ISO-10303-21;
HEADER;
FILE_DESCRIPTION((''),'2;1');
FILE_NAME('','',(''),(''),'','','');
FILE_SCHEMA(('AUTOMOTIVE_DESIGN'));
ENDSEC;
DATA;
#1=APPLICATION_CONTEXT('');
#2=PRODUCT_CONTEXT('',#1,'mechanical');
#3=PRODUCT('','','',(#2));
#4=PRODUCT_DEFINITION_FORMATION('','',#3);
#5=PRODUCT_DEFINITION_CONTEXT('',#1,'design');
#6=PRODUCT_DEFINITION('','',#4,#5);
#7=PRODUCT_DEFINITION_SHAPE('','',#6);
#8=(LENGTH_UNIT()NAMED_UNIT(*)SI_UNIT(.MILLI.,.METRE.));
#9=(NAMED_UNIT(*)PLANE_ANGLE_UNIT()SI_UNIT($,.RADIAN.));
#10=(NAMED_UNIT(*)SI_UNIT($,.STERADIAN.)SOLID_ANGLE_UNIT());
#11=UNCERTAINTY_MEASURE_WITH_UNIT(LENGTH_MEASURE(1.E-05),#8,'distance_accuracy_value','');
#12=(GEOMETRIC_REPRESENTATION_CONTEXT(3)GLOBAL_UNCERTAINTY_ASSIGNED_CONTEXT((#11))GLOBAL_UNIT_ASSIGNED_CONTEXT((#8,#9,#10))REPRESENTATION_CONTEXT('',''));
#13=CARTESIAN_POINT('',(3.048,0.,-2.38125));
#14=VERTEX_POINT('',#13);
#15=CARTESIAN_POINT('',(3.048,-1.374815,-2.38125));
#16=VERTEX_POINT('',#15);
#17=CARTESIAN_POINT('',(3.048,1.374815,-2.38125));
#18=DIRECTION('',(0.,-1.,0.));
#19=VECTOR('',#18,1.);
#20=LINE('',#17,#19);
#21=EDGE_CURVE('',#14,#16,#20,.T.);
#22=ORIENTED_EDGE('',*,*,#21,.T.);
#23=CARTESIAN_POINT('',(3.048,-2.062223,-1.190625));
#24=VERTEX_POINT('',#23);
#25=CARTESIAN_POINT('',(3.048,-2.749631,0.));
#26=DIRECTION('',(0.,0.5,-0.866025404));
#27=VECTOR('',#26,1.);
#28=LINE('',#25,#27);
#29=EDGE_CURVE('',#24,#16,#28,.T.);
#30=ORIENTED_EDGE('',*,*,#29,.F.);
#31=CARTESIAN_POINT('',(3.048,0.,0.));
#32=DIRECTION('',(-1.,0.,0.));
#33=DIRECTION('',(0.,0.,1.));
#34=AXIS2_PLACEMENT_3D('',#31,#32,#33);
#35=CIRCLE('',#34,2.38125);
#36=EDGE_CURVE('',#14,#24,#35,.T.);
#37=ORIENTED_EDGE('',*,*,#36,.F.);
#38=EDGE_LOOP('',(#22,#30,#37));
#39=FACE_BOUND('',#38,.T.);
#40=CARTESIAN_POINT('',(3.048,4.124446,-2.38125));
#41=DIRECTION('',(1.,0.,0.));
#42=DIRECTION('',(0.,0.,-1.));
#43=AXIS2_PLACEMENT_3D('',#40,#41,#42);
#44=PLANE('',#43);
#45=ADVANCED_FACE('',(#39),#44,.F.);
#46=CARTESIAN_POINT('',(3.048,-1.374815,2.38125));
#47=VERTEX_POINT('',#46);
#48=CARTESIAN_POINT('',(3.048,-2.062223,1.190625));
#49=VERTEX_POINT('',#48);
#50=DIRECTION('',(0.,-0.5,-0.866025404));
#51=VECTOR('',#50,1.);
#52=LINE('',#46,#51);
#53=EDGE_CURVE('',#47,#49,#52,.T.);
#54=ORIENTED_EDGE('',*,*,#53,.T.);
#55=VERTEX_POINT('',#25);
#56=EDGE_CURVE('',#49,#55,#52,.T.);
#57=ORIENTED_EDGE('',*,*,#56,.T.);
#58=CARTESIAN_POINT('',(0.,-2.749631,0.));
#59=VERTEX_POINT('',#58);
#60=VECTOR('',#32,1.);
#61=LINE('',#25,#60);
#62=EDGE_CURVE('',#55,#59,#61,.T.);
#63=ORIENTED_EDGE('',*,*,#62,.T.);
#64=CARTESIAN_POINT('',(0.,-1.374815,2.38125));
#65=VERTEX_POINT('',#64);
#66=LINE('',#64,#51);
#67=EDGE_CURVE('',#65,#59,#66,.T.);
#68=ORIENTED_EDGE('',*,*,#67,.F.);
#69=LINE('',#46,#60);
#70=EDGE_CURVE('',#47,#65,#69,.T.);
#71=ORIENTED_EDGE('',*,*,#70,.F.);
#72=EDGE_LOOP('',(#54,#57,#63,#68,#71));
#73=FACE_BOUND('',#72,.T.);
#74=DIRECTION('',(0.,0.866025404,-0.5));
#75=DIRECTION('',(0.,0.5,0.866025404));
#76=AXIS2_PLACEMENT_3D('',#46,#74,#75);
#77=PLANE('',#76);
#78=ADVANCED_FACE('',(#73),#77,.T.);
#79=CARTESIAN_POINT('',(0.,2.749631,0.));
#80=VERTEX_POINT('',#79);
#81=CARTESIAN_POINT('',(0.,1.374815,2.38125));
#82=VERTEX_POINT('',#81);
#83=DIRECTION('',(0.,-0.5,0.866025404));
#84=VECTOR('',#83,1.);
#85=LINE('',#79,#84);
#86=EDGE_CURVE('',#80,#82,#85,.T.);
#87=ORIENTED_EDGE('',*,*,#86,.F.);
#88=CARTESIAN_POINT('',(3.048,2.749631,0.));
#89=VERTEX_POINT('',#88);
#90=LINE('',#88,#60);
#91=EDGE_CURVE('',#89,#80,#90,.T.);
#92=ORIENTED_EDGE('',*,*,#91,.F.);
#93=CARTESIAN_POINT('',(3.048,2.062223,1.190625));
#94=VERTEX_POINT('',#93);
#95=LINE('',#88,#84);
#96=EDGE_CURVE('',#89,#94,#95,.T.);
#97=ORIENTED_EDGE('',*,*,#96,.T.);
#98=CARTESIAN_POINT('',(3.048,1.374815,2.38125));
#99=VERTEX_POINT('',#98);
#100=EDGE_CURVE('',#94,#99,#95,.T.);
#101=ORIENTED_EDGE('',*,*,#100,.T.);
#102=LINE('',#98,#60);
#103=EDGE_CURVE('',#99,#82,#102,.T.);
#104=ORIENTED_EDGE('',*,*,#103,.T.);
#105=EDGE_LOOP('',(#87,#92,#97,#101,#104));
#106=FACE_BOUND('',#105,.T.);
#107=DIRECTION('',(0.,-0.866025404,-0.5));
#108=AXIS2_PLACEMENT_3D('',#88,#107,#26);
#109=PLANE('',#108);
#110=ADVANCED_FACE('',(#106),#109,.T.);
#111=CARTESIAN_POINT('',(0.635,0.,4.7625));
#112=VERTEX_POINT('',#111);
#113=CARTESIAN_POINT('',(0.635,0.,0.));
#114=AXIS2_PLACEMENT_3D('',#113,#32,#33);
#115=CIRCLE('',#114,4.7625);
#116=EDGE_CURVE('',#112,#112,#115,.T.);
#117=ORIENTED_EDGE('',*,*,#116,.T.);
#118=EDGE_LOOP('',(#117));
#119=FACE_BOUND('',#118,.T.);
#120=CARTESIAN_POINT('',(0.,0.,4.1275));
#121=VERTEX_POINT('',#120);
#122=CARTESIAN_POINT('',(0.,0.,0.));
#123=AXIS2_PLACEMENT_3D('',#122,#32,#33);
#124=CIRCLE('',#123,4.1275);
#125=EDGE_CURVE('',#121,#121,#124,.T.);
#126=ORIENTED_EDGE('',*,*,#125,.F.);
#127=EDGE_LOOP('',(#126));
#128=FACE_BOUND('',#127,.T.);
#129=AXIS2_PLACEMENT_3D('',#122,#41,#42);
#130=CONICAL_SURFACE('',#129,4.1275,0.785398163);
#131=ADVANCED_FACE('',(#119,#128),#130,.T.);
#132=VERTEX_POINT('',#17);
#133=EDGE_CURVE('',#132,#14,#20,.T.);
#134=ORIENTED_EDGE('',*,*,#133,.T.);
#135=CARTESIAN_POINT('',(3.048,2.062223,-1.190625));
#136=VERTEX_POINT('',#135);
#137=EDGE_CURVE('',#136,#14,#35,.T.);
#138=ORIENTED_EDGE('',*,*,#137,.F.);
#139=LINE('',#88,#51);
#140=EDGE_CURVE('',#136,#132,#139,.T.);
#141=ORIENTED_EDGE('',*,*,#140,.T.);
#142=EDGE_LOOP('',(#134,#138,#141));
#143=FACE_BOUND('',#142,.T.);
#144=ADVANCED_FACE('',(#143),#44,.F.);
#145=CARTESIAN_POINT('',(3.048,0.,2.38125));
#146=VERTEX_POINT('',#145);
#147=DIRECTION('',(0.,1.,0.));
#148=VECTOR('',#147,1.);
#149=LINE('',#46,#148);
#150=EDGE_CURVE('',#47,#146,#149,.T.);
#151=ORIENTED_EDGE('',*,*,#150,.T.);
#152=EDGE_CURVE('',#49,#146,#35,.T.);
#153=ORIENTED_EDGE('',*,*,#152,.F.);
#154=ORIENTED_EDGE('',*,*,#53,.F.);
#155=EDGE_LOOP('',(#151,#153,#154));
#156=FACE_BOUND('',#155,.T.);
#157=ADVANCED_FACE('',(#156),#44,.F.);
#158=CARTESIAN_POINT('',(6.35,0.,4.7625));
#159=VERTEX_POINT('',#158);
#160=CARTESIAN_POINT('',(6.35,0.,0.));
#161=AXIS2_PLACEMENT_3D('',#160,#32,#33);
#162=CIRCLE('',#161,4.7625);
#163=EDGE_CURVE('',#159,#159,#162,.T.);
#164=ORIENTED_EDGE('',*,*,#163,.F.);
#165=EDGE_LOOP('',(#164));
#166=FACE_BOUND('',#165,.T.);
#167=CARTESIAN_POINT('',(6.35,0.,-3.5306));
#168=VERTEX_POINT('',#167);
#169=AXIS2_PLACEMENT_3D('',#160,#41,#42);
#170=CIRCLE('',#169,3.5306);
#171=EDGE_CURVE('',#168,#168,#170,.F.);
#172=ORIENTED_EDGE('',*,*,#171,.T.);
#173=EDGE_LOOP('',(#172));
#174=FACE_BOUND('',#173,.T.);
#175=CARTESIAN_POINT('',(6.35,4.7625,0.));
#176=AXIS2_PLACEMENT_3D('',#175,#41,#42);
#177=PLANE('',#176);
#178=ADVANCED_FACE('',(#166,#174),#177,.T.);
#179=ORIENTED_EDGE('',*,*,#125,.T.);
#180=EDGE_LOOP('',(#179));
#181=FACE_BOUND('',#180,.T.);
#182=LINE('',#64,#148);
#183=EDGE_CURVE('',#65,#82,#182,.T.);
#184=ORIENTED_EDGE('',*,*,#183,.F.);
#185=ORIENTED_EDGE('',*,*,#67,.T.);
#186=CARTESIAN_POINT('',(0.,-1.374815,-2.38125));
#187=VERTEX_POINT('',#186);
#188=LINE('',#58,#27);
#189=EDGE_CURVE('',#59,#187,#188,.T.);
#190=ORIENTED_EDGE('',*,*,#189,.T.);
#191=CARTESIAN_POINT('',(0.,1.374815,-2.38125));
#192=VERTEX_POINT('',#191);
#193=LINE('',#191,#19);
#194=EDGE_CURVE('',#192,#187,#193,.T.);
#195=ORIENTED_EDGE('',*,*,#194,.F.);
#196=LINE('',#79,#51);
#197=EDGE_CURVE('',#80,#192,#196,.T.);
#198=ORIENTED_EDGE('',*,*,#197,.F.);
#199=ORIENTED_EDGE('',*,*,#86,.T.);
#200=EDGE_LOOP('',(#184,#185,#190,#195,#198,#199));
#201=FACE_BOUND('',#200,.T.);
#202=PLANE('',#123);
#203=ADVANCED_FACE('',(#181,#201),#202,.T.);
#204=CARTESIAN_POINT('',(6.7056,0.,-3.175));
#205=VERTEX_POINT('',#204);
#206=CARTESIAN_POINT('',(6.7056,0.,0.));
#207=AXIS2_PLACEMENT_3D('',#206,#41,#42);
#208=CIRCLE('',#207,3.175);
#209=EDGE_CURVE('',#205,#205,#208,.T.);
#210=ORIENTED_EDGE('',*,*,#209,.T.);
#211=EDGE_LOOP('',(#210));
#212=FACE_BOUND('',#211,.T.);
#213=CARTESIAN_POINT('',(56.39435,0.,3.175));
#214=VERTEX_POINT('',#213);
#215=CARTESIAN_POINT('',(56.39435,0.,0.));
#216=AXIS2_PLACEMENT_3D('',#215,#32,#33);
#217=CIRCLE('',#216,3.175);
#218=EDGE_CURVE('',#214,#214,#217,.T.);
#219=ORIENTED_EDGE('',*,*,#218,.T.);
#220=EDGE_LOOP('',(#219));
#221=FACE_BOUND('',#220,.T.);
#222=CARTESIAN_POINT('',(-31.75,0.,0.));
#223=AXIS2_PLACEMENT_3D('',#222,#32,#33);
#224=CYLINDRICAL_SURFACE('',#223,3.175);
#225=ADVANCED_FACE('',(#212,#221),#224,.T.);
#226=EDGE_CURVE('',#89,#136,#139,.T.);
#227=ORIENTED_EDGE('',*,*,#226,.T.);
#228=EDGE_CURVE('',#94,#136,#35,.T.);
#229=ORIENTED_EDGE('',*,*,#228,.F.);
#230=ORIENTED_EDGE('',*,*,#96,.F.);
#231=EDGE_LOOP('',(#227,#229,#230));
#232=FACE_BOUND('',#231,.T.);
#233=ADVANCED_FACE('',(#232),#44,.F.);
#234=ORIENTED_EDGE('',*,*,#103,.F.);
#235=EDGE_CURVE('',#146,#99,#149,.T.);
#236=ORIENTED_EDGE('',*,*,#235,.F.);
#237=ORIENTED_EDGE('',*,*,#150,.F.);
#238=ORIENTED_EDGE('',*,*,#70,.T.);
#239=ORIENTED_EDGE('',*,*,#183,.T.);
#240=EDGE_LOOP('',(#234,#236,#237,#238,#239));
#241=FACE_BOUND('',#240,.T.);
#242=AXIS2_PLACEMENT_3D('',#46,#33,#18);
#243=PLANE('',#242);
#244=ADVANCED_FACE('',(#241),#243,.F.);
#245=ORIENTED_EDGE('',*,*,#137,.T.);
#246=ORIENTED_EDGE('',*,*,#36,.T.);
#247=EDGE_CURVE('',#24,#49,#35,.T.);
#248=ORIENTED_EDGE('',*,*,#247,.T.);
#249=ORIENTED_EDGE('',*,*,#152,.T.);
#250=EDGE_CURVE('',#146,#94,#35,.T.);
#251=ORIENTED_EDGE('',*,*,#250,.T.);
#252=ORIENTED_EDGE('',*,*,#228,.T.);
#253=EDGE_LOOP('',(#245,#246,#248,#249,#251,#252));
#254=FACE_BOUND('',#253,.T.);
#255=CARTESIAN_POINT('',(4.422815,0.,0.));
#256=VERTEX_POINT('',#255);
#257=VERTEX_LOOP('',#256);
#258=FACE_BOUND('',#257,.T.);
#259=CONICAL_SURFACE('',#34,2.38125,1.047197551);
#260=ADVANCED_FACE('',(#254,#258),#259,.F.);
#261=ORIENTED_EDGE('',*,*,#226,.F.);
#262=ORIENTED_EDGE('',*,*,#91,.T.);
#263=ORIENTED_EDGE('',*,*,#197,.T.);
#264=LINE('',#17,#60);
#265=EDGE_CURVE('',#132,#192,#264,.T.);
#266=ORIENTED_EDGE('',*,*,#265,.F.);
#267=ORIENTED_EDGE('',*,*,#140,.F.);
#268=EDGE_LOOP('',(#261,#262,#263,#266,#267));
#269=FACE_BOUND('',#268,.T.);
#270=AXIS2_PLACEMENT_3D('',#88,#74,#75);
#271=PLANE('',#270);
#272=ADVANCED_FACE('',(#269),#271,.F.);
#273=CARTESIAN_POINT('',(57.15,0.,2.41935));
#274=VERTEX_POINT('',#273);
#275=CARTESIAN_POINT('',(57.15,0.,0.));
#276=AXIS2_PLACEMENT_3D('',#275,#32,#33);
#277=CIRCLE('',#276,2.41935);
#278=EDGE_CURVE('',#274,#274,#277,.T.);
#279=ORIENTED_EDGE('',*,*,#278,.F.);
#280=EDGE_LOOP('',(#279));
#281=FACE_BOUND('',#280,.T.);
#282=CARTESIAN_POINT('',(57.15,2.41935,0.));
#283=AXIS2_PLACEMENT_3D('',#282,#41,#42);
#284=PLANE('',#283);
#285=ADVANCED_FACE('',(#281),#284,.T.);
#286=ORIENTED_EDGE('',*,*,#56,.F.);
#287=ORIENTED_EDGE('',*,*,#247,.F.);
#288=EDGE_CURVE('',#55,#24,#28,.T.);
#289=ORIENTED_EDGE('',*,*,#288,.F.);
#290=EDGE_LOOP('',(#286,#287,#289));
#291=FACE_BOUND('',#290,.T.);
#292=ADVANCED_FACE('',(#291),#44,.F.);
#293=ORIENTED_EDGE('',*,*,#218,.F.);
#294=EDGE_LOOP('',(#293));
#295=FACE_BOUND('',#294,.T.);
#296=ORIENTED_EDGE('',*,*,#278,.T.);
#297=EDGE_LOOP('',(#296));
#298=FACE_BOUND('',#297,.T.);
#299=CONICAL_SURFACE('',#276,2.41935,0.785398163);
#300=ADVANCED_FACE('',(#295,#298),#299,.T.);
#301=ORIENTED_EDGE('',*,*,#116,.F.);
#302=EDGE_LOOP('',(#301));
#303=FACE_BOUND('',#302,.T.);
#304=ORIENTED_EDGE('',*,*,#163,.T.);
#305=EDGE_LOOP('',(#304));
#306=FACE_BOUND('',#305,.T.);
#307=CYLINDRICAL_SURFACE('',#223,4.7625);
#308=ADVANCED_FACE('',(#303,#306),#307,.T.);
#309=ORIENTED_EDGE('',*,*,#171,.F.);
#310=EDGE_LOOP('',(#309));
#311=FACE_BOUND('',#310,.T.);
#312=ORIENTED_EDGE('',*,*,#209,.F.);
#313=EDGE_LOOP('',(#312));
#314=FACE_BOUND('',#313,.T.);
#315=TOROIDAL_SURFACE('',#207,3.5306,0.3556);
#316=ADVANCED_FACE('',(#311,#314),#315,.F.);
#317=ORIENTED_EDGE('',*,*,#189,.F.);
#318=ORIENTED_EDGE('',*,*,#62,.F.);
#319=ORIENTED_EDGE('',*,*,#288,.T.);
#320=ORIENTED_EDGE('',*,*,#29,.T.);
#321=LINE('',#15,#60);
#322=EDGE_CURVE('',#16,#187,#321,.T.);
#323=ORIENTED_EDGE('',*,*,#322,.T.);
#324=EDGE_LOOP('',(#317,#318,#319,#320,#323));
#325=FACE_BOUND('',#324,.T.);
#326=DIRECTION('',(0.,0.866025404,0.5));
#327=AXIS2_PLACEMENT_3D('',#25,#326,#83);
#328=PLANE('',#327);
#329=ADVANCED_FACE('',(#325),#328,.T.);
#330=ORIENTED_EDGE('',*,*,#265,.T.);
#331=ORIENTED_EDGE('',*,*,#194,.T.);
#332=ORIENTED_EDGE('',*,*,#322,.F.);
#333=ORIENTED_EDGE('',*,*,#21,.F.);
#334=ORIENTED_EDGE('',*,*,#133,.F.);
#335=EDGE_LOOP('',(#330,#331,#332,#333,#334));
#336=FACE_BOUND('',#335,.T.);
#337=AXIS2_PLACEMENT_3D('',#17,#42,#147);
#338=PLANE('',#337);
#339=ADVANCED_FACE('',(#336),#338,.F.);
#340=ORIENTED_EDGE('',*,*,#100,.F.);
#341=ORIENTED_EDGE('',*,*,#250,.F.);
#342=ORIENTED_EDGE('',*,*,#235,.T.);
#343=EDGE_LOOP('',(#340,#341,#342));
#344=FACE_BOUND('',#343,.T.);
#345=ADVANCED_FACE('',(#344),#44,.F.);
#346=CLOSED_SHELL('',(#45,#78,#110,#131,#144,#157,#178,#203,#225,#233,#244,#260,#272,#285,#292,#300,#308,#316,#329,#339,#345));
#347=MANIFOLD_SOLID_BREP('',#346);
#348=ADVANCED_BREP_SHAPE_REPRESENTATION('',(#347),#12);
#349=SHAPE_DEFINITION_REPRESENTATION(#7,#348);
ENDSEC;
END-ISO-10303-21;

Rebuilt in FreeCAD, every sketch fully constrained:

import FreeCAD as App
import Part
import Sketcher
from FreeCAD import Vector
Q = App.Units.Quantity


def edges_at(feature, points):
    """Names of the edges that pass closest to the given points."""
    edges = feature.Shape.Edges
    near = lambda p: min(range(len(edges)), key=lambda i: edges[i].distToShape(Part.Vertex(*p))[0])
    return sorted({f"Edge{near(p) + 1}" for p in points})

doc = App.newDocument("Part")
body = doc.addObject("PartDesign::Body", "Body")

# Sketch on XY plane
sketch1 = doc.addObject("Sketcher::SketchObject", "Sketch")
body.addObject(sketch1)
sketch1.AttachmentSupport = (doc.XY_Plane, [""])
sketch1.MapMode = "FlatFace"
sketch1.addGeometry([
    Part.LineSegment(Vector(0, 4.1, 0), Vector(0, 0, 0)),  # 0
    Part.LineSegment(Vector(0, 0, 0), Vector(57.1, 0, 0)),  # 1
    Part.LineSegment(Vector(57.1, 0, 0), Vector(57.1, 2.4, 0)),  # 2
    Part.LineSegment(Vector(57.1, 2.4, 0), Vector(56.4, 3.2, 0)),  # 3
    Part.LineSegment(Vector(56.4, 3.2, 0), Vector(6.3, 3.2, 0)),  # 4
    Part.LineSegment(Vector(6.3, 3.2, 0), Vector(6.3, 4.8, 0)),  # 5
    Part.LineSegment(Vector(6.3, 4.8, 0), Vector(0.6, 4.8, 0)),  # 6
    Part.LineSegment(Vector(0.6, 4.8, 0), Vector(0, 4.1, 0)),  # 7
], False)
sketch1.addConstraint([
    Sketcher.Constraint("Coincident", 0, 2, 1, 1),
    Sketcher.Constraint("Coincident", 1, 2, 2, 1),
    Sketcher.Constraint("Coincident", 2, 2, 3, 1),
    Sketcher.Constraint("Coincident", 3, 2, 4, 1),
    Sketcher.Constraint("Coincident", 4, 2, 5, 1),
    Sketcher.Constraint("Coincident", 5, 2, 6, 1),
    Sketcher.Constraint("Coincident", 6, 2, 7, 1),
    Sketcher.Constraint("Coincident", 7, 2, 0, 1),
    Sketcher.Constraint("Vertical", 0),
    Sketcher.Constraint("Horizontal", 1),
    Sketcher.Constraint("Vertical", 2),
    Sketcher.Constraint("Horizontal", 4),
    Sketcher.Constraint("Vertical", 5),
    Sketcher.Constraint("Horizontal", 6),
    Sketcher.Constraint("Coincident", 0, 2, -1, 1),
    Sketcher.Constraint("Perpendicular", 3, 7),
    Sketcher.Constraint("Angle", 3, Q("135 deg")),
    Sketcher.Constraint("DistanceX", 4, 2, 2, 2, Q("2 in")),
    Sketcher.Constraint("DistanceX", 1, 1, 1, 2, Q("2.25 in")),
    Sketcher.Constraint("DistanceX", 6, 2, 6, 1, Q("0.225 in")),
    Sketcher.Constraint("DistanceY", 5, 1, 5, 2, Q("0.0625 in")),
    Sketcher.Constraint("DistanceY", 0, 2, 0, 1, Q("0.1625 in")),
    Sketcher.Constraint("DistanceX", 4, 2, 4, 1, Q("50.04435 mm")),
])
revolution = doc.addObject("PartDesign::Revolution", "Revolution")
body.addObject(revolution)
revolution.Profile = sketch1
revolution.ReferenceAxis = (sketch1, ["H_Axis"])
revolution.Angle = 360
doc.recompute()

fillet = doc.addObject("PartDesign::Fillet", "Fillet")
body.addObject(fillet)
fillet.Base = (revolution, edges_at(revolution, [(6.35, 0, -3.175)]))
fillet.Radius = Q("0.014 in")

# Sketch on XY plane
sketch2 = doc.addObject("Sketcher::SketchObject", "Sketch001")
body.addObject(sketch2)
sketch2.AttachmentSupport = (doc.XY_Plane, [""])
sketch2.MapMode = "FlatFace"
sketch2.addGeometry([
    Part.LineSegment(Vector(3, 2.4, 0), Vector(0, 2.4, 0)),
    Part.LineSegment(Vector(0, 2.4, 0), Vector(0, 0, 0)),
    Part.LineSegment(Vector(0, 0, 0), Vector(4.4, 0, 0)),
    Part.LineSegment(Vector(4.4, 0, 0), Vector(3, 2.4, 0)),
], False)
sketch2.addConstraint([
    Sketcher.Constraint("Coincident", 0, 2, 1, 1),
    Sketcher.Constraint("Coincident", 1, 2, 2, 1),
    Sketcher.Constraint("Coincident", 2, 2, 3, 1),
    Sketcher.Constraint("Coincident", 3, 2, 0, 1),
    Sketcher.Constraint("Horizontal", 0),
    Sketcher.Constraint("Vertical", 1),
    Sketcher.Constraint("Horizontal", 2),
    Sketcher.Constraint("Coincident", 1, 2, -1, 1),
    Sketcher.Constraint("Angle", 3, Q("120 deg")),
    Sketcher.Constraint("DistanceX", 0, 2, 0, 1, Q("0.12 in")),
    Sketcher.Constraint("DistanceY", 1, 2, 1, 1, Q("0.09375 in")),
])
groove = doc.addObject("PartDesign::Groove", "Groove")
body.addObject(groove)
groove.Profile = sketch2
groove.ReferenceAxis = (sketch2, ["H_Axis"])
groove.Angle = 360

# Sketch on YZ plane
sketch3 = doc.addObject("Sketcher::SketchObject", "Sketch002")
body.addObject(sketch3)
sketch3.AttachmentSupport = (doc.YZ_Plane, [""])
sketch3.MapMode = "FlatFace"
sketch3.addGeometry([
    Part.LineSegment(Vector(2.7, 0, 0), Vector(1.4, -2.4, 0)),  # 0
    Part.LineSegment(Vector(1.4, -2.4, 0), Vector(-1.4, -2.4, 0)),  # 1
    Part.LineSegment(Vector(-1.4, -2.4, 0), Vector(-2.7, 0, 0)),  # 2
    Part.LineSegment(Vector(-2.7, 0, 0), Vector(-1.4, 2.4, 0)),  # 3
    Part.LineSegment(Vector(-1.4, 2.4, 0), Vector(1.4, 2.4, 0)),  # 4
    Part.LineSegment(Vector(1.4, 2.4, 0), Vector(2.7, 0, 0)),  # 5
], False)
sketch3.addConstraint([
    Sketcher.Constraint("Coincident", 0, 2, 1, 1),
    Sketcher.Constraint("Coincident", 1, 2, 2, 1),
    Sketcher.Constraint("Coincident", 2, 2, 3, 1),
    Sketcher.Constraint("Coincident", 3, 2, 4, 1),
    Sketcher.Constraint("Coincident", 4, 2, 5, 1),
    Sketcher.Constraint("Coincident", 5, 2, 0, 1),
    Sketcher.Constraint("Horizontal", 1),
    Sketcher.Constraint("Horizontal", 4),
    Sketcher.Constraint("Symmetric", 0, 2, 3, 2, -1, 1),
    Sketcher.Constraint("Symmetric", 2, 2, 5, 2, -1, 1),
    Sketcher.Constraint("PointOnObject", 2, 2, -1),
    Sketcher.Constraint("Parallel", 2, 5),
    Sketcher.Constraint("Vertical", 1, 2, 3, 2),
    Sketcher.Constraint("Angle", 0, Q("-120 deg")),
    Sketcher.Constraint("DistanceY", 0, 2, -1, 1, Q("0.09375 in")),
    Sketcher.Constraint("DistanceX", 1, 2, 1, 1, Q("2.749631 mm")),
])
pocket1 = doc.addObject("PartDesign::Pocket", "Pocket")
body.addObject(pocket1)
pocket1.Profile = sketch3
pocket1.Length = Q("0.12 in")
pocket1.Reversed = True

doc.recompute()
